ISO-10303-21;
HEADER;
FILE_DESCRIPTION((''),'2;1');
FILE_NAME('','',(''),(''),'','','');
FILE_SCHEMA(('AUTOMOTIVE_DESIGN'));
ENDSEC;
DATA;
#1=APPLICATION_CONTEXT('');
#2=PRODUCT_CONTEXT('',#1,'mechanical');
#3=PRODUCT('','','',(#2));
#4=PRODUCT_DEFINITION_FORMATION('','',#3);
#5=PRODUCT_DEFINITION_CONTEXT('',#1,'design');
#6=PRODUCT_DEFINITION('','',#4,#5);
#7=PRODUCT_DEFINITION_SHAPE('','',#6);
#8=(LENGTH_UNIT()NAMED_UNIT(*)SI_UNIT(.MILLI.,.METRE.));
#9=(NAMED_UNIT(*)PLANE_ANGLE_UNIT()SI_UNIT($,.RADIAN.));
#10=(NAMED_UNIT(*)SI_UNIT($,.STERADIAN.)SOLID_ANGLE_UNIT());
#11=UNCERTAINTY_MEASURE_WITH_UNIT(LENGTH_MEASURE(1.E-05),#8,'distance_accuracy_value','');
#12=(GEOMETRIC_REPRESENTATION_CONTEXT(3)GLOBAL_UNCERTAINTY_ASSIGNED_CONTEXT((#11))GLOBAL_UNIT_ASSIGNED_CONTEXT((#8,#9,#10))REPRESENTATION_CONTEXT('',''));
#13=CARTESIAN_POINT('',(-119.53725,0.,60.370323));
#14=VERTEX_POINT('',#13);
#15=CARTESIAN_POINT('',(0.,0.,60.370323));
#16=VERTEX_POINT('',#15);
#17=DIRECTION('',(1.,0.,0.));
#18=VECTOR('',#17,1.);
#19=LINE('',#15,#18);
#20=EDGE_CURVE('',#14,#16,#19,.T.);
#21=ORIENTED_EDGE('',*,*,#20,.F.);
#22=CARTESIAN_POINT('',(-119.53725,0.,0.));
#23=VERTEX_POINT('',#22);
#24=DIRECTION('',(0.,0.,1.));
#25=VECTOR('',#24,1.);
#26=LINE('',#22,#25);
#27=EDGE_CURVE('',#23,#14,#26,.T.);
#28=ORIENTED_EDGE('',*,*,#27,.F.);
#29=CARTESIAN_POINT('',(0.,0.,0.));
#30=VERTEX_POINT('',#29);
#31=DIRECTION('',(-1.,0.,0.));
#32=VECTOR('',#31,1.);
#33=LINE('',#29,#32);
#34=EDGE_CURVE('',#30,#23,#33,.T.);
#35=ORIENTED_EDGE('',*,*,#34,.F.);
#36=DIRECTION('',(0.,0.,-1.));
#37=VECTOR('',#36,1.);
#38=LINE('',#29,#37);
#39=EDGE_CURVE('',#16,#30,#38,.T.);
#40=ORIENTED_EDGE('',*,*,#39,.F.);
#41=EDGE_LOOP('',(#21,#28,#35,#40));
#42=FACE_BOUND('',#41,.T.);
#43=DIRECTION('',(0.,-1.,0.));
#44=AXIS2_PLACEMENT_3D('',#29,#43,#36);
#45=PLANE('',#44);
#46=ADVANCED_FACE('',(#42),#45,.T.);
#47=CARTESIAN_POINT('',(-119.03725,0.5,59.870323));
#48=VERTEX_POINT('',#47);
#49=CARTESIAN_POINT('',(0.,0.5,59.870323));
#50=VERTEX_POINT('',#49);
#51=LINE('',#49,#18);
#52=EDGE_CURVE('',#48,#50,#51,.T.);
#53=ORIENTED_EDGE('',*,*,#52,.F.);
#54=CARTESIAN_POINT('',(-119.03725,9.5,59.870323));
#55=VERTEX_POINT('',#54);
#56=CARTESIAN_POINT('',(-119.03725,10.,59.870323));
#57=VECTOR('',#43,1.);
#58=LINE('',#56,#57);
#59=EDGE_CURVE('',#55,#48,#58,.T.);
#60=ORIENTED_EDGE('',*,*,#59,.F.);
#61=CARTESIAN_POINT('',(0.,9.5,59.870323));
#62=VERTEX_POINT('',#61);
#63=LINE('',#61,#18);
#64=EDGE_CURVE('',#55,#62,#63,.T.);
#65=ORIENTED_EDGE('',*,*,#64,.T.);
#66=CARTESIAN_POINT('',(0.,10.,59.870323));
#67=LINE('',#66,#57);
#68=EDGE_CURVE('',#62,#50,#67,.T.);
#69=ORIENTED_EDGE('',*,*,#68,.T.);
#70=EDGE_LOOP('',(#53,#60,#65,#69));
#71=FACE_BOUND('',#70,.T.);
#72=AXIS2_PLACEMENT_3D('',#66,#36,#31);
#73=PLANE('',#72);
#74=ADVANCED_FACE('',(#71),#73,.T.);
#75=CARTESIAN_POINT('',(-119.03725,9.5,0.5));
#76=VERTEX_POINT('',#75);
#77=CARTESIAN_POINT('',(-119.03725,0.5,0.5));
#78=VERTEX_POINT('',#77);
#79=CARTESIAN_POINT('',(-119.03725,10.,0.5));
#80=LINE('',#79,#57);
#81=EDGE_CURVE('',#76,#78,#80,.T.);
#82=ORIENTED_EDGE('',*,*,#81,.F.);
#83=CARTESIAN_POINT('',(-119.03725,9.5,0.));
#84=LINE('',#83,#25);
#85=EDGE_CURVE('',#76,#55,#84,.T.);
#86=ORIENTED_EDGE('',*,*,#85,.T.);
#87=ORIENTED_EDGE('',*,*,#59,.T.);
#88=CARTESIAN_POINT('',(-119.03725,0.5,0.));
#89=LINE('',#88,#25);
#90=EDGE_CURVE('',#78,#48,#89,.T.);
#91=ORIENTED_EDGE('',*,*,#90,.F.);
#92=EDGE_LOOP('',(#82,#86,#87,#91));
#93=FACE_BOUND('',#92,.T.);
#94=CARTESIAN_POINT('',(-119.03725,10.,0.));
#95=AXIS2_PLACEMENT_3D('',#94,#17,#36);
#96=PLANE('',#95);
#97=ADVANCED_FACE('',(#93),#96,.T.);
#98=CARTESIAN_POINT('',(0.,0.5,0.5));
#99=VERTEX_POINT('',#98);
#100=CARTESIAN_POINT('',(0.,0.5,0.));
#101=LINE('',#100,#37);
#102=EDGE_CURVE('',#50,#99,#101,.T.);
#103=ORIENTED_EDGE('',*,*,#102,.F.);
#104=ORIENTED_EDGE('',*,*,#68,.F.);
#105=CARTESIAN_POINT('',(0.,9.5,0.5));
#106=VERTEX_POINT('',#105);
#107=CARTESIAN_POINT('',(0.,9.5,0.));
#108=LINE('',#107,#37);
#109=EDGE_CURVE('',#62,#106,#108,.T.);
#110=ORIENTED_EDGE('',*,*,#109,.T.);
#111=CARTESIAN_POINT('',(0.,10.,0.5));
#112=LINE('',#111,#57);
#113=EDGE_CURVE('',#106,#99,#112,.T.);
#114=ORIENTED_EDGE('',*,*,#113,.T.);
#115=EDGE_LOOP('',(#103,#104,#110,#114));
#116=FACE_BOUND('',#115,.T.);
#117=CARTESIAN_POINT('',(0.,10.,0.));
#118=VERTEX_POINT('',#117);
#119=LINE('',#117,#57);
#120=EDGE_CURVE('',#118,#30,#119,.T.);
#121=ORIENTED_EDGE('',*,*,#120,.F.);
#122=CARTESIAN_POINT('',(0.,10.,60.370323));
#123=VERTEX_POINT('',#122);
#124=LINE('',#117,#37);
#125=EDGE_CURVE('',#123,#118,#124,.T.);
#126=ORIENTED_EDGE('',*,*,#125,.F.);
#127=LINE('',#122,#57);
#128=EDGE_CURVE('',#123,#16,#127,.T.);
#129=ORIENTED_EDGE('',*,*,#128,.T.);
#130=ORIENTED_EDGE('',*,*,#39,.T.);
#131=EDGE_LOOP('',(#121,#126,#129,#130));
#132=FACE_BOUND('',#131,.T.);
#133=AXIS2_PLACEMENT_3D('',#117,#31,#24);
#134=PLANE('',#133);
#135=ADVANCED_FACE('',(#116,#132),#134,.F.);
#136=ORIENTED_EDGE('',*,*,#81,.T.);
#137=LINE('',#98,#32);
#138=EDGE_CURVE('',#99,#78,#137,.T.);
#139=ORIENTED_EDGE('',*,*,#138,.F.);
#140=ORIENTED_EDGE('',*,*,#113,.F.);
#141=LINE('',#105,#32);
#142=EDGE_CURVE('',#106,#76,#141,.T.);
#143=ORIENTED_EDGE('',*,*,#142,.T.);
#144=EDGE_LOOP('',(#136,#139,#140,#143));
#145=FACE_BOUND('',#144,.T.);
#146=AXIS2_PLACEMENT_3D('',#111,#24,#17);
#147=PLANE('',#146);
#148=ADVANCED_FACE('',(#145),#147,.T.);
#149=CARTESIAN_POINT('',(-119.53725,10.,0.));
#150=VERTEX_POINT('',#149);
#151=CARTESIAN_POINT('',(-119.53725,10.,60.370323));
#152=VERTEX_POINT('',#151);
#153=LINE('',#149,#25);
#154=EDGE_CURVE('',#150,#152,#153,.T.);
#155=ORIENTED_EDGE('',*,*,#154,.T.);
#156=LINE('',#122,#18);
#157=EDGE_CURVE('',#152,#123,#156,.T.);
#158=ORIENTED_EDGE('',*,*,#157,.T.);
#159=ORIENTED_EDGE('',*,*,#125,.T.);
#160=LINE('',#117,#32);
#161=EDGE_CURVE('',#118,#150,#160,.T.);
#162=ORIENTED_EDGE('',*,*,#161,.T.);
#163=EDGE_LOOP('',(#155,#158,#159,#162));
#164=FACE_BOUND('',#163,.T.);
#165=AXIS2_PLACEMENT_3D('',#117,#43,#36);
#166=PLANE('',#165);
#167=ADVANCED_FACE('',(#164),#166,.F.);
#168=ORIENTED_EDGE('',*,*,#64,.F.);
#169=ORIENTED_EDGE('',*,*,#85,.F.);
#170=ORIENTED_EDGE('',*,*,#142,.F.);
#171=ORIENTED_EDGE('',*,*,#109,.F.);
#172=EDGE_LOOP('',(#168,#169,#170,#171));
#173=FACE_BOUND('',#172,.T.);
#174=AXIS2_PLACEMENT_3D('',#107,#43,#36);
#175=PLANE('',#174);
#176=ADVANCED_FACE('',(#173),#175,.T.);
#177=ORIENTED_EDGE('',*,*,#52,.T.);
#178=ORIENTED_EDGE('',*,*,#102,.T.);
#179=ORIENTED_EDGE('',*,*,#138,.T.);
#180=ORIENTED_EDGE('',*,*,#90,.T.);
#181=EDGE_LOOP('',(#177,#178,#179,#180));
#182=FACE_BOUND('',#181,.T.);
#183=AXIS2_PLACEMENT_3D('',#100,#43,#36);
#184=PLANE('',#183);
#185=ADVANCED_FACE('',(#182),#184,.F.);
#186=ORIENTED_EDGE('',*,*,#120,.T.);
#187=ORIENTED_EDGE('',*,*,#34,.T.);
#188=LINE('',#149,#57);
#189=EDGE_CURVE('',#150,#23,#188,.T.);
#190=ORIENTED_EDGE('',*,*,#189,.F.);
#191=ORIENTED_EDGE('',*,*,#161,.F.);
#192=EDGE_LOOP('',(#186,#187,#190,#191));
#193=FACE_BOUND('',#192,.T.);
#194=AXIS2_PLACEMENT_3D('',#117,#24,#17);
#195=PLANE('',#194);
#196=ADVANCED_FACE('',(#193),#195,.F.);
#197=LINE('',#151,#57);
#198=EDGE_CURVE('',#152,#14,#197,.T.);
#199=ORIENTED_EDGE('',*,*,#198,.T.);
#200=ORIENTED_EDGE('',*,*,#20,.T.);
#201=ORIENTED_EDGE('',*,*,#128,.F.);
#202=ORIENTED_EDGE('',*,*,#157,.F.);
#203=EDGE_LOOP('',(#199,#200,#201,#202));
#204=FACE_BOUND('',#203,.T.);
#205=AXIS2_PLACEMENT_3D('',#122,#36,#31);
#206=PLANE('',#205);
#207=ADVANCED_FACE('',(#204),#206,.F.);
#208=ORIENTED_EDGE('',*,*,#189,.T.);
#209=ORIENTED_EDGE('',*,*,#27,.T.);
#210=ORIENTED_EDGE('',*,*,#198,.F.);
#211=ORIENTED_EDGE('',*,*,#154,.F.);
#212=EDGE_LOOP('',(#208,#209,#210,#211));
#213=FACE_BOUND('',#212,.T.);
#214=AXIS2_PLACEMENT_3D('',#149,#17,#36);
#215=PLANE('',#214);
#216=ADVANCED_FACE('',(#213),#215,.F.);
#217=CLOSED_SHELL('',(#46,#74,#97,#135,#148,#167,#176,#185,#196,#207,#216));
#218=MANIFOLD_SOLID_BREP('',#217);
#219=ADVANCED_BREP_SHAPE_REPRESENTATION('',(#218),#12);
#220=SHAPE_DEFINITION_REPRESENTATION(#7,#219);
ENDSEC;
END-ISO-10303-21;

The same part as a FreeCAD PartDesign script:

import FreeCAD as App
import Part
import Sketcher
from FreeCAD import Vector
Q = App.Units.Quantity


def faces_at(feature, points):
    """Names of the faces that lie closest to the given points."""
    faces = feature.Shape.Faces
    near = lambda p: min(range(len(faces)), key=lambda i: faces[i].distToShape(Part.Vertex(*p))[0])
    return sorted({f"Face{near(p) + 1}" for p in points})


def add_polygon(sketch, points):
    """Adds a closed chain of lines whose ends are joined by coincident constraints."""
    first, n = sketch.GeometryCount, len(points)
    for a, b in zip(points, points[1:] + points[:1]):
        sketch.addGeometry(Part.LineSegment(App.Vector(*a, 0), App.Vector(*b, 0)), False)
    for i in range(n):
        sketch.addConstraint(Sketcher.Constraint("Coincident", first + i, 2, first + (i + 1) % n, 1))

doc = App.newDocument("Part")
body = doc.addObject("PartDesign::Body", "Body")

sketch1 = body.newObject("Sketcher::SketchObject", "Sketch")
sketch1.AttachmentSupport = (doc.getObject("XZ_Plane"), [""])
sketch1.MapMode = "FlatFace"
add_polygon(sketch1, [(-120, 0), (-120, 60), (0, 60), (0, 0)])
sketch1.addConstraint([
    Sketcher.Constraint("Vertical", 0),
    Sketcher.Constraint("Horizontal", 1),
    Sketcher.Constraint("Vertical", 2),
    Sketcher.Constraint("Horizontal", 3),
    Sketcher.Constraint("Coincident", 2, 2, -1, 1),
    Sketcher.Constraint("DistanceX", 1, 1, 1, 2, Q("119.53725 mm")),
    Sketcher.Constraint("DistanceY", 0, 1, 0, 2, Q("60.370323 mm")),
])
pad1 = body.newObject("PartDesign::Pad", "Pad")
pad1.Profile = sketch1
pad1.Length = 10
pad1.Reversed = True
doc.recompute()

thickness = body.newObject("PartDesign::Thickness", "Thickness")
thickness.Base = (pad1, faces_at(pad1, [(0, 5, 30.185)]))
thickness.Value = 0.5
thickness.Reversed = True
thickness.Join = "Intersection"

doc.recompute()
